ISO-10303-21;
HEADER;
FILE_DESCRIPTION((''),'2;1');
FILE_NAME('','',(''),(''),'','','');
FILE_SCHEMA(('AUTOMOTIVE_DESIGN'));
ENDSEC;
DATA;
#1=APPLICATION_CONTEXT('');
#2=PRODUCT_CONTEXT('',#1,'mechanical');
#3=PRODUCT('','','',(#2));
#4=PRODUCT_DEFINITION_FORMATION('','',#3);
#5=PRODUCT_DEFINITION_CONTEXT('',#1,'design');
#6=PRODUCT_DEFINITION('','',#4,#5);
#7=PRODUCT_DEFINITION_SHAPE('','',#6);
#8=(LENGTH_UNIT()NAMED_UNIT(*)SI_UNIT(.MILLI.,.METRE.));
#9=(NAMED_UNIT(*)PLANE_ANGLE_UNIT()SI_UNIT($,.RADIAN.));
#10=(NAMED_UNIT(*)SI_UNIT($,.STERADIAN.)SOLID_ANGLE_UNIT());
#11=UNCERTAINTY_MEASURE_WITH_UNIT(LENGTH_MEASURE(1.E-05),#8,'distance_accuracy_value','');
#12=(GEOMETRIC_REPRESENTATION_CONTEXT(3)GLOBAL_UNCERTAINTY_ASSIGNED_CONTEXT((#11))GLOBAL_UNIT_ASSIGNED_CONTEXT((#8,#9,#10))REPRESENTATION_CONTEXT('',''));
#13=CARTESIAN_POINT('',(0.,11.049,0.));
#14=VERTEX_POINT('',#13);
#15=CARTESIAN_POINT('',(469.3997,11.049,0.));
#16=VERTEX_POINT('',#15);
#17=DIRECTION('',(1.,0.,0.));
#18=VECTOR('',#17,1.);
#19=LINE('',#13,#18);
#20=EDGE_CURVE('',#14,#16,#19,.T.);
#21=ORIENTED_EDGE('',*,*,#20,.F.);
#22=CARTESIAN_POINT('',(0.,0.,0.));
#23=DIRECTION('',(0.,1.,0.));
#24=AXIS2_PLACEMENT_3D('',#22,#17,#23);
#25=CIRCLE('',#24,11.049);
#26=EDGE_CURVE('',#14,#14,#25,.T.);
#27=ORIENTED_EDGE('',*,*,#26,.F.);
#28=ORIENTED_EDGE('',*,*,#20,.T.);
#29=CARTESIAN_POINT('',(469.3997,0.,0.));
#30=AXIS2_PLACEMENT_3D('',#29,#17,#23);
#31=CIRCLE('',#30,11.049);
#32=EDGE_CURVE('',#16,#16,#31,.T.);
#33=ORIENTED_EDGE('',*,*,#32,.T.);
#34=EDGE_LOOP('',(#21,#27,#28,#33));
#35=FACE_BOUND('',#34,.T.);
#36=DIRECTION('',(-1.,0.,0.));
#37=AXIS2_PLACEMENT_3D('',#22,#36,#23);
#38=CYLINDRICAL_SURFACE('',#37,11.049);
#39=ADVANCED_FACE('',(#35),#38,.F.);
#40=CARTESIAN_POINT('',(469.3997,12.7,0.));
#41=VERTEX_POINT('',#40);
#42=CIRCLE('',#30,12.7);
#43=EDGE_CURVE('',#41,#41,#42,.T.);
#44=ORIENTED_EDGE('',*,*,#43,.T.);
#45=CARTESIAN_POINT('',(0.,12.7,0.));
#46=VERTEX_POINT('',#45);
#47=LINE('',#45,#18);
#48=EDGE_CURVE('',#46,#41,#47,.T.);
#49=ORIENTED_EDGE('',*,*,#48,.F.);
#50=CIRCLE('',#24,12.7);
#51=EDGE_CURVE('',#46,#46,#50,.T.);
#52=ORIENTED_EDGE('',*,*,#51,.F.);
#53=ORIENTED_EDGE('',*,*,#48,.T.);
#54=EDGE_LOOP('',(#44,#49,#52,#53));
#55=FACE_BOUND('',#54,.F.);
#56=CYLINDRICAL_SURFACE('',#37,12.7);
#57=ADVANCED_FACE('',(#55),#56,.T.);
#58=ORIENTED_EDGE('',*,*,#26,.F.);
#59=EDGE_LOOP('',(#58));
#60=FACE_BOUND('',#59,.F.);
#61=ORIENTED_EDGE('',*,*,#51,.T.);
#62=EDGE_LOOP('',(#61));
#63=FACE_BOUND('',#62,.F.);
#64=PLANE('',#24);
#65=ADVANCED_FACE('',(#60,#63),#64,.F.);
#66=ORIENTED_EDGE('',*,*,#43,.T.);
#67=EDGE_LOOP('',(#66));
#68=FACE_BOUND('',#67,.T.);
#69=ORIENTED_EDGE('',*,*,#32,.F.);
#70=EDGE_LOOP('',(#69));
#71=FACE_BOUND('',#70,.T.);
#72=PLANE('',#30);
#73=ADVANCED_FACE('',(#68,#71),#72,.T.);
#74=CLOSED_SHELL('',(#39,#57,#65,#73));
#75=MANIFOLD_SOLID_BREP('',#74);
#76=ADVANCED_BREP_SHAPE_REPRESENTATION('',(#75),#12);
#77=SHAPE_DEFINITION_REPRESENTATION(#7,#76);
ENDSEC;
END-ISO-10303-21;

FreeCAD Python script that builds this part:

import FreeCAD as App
import Part
import Sketcher

V = App.Vector
Q = App.Units.Quantity

doc = App.newDocument("Part")
params = doc.addObject("Spreadsheet::Sheet", "Params")
for row, (alias, value) in enumerate([
    ("sketch1_diameter", "1 in"),
    ("sketch1_diameter2", "0.87 in"),
    ("pad1_length", "18.4803031 in"),
], start=1):
    params.set(f"A{row}", alias)
    params.set(f"B{row}", "=" + value)
    params.setAlias(f"B{row}", alias)

body = doc.addObject("PartDesign::Body", "Body")

# Sketch on YZ plane
sketch1 = doc.addObject("Sketcher::SketchObject", "Sketch")
body.addObject(sketch1)
sketch1.AttachmentSupport = (doc.YZ_Plane, [""])
sketch1.MapMode = "FlatFace"
sketch1.addGeometry(Part.Circle(V(0, 0, 0), V(0, 0, 1), 12.7), False)
sketch1.addGeometry(Part.Circle(V(0, 0, 0), V(0, 0, 1), 11.049), False)
sketch1.addConstraint(Sketcher.Constraint("Coincident", 0, 3, -1, 1))
sketch1.addConstraint(Sketcher.Constraint("Coincident", 1, 3, -1, 1))
sketch1.addConstraint(Sketcher.Constraint("Diameter", 0, Q("1 in")))
sketch1.addConstraint(Sketcher.Constraint("Diameter", 1, Q("0.87 in")))
sketch1.setExpression("Constraints[2]", "Params.sketch1_diameter")
sketch1.setExpression("Constraints[3]", "Params.sketch1_diameter2")
pad1 = doc.addObject("PartDesign::Pad", "Pad")
body.addObject(pad1)
pad1.Profile = sketch1
pad1.setExpression("Length", "Params.pad1_length")

doc.recompute()
